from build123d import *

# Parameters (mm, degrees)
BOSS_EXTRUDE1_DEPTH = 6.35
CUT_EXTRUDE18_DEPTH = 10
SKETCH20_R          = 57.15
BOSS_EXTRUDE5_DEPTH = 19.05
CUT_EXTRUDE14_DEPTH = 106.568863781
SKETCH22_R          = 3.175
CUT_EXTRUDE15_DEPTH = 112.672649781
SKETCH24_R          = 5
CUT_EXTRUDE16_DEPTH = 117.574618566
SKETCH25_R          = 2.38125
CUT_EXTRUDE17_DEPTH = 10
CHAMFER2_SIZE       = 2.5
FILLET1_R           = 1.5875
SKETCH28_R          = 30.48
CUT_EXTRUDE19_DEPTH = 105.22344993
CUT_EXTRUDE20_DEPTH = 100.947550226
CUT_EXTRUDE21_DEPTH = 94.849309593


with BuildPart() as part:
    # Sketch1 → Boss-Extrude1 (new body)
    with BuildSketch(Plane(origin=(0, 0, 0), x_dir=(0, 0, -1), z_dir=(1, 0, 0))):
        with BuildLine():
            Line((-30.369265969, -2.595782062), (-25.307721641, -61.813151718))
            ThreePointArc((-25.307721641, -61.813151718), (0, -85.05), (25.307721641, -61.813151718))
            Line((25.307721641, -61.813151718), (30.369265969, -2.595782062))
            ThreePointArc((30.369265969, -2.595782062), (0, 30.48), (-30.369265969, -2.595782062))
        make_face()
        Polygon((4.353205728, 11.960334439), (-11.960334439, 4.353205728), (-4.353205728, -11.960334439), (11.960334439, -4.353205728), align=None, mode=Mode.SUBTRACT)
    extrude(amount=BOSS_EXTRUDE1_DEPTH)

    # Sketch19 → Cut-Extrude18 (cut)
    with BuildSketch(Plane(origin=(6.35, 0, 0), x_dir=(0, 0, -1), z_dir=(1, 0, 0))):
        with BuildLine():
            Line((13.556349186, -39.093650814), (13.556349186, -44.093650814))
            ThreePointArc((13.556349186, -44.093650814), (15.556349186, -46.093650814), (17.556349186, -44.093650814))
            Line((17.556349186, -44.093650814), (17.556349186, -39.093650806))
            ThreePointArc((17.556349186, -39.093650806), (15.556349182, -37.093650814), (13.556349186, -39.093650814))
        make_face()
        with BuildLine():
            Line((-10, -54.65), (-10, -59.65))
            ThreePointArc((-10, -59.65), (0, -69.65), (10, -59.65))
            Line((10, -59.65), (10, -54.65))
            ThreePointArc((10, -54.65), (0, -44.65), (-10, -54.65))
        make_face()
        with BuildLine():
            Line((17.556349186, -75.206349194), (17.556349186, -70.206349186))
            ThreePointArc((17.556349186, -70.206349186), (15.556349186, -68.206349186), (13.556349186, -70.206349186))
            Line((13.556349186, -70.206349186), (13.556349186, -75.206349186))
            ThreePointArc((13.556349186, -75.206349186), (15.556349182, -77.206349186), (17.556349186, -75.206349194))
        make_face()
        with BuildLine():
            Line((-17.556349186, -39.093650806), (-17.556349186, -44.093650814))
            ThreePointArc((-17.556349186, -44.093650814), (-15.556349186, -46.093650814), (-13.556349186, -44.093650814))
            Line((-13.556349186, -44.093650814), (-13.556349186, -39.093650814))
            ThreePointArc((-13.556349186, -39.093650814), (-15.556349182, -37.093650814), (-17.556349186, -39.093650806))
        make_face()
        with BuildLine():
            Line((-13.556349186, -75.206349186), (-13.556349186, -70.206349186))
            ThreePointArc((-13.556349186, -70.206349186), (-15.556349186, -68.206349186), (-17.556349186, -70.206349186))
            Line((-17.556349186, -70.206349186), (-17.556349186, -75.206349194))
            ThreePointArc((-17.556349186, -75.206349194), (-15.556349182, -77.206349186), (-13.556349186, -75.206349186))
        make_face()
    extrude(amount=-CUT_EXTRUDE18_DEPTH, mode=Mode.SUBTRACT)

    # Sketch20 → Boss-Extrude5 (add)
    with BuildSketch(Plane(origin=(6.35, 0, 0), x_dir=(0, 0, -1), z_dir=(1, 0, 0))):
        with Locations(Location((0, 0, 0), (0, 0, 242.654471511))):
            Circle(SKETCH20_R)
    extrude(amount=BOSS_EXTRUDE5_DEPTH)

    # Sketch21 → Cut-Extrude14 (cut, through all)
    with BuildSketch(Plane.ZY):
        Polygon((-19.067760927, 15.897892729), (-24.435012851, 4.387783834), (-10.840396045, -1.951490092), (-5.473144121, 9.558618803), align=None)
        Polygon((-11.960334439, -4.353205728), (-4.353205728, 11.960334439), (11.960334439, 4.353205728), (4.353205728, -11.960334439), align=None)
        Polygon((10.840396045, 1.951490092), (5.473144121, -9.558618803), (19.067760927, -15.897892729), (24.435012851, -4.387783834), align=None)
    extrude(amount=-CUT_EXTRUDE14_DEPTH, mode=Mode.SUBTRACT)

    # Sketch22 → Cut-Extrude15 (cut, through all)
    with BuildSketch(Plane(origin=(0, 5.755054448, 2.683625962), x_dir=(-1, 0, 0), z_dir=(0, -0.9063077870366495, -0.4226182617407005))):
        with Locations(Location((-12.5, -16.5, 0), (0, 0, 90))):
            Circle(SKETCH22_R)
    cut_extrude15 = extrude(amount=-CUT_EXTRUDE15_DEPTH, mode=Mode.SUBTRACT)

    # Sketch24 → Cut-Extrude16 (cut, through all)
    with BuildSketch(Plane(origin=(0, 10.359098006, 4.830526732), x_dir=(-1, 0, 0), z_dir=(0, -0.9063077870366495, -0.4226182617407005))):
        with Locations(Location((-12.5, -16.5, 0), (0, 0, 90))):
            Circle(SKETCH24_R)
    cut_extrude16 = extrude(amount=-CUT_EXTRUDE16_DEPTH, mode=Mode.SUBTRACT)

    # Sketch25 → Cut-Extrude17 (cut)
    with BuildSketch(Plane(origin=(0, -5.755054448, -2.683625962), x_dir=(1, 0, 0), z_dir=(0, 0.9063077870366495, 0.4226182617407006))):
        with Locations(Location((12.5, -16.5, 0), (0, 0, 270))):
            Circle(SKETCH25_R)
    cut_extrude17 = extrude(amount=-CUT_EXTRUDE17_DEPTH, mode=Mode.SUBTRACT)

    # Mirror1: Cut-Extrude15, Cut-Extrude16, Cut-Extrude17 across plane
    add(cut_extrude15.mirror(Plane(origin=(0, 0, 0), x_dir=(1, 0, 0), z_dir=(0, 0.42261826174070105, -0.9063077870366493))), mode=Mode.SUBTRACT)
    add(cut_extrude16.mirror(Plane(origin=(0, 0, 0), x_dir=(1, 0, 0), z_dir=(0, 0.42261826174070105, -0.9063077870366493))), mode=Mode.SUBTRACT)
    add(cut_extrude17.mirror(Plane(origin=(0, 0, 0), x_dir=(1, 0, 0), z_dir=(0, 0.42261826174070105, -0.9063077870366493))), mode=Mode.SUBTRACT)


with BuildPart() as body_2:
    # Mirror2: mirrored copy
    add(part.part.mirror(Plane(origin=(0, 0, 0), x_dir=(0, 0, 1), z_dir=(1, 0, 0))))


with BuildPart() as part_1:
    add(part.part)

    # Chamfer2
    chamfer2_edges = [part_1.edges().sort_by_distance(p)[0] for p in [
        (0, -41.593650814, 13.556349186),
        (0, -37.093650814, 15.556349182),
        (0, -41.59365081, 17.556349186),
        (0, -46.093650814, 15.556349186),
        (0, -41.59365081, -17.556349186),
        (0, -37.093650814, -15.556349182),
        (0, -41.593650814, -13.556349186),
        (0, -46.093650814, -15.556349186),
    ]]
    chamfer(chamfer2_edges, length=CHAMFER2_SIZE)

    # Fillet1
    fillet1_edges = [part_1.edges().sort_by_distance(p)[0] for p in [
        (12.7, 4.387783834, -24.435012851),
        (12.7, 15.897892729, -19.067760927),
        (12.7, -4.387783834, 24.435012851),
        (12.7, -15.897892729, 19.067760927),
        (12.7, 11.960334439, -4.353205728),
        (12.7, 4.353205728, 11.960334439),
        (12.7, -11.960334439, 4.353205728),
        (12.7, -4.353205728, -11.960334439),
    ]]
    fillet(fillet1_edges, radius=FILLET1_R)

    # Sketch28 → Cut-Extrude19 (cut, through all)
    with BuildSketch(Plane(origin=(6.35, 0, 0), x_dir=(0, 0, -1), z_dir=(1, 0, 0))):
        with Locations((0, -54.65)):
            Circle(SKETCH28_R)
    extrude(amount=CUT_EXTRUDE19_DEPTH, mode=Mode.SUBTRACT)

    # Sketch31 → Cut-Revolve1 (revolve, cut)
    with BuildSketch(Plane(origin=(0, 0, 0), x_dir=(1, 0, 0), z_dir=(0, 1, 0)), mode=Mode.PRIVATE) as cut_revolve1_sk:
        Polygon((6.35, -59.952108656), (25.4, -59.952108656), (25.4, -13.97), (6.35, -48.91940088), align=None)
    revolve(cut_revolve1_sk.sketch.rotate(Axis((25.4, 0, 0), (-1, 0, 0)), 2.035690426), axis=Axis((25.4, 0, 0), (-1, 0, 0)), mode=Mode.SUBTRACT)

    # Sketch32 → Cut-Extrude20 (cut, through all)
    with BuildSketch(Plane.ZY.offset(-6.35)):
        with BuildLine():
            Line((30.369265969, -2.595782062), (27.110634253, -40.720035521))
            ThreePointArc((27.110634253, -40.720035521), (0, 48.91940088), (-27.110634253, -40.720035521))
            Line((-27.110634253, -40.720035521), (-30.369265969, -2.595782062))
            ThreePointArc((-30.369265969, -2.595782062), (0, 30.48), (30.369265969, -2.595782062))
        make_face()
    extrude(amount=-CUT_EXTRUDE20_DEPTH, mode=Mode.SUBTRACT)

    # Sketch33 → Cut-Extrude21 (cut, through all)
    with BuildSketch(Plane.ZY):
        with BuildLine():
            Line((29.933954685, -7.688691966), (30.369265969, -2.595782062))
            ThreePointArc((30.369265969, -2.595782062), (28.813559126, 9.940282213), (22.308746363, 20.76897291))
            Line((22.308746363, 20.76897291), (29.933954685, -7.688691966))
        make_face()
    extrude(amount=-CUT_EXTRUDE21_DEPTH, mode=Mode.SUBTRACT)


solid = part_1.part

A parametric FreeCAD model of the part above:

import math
import FreeCAD as App
import Part
import Sketcher

V = App.Vector
Q = App.Units.Quantity


def edges_at(feature, points):
    """Names of the edges that pass closest to the given points."""
    edges = feature.Shape.Edges
    near = lambda p: min(range(len(edges)), key=lambda i: edges[i].distToShape(Part.Vertex(*p))[0])
    return sorted({f"Edge{near(p) + 1}" for p in points})


def add_polygon(sketch, points):
    """Adds a closed chain of lines whose ends are joined by coincident constraints."""
    first, n = sketch.GeometryCount, len(points)
    for a, b in zip(points, points[1:] + points[:1]):
        sketch.addGeometry(Part.LineSegment(App.Vector(*a, 0), App.Vector(*b, 0)), False)
    for i in range(n):
        sketch.addConstraint(Sketcher.Constraint("Coincident", first + i, 2, first + (i + 1) % n, 1))

doc = App.newDocument("Part")
body = doc.addObject("PartDesign::Body", "Body")

sketch1 = doc.addObject("Sketcher::SketchObject", "Sketch")
body.addObject(sketch1)
sketch1.AttachmentSupport = (doc.YZ_Plane, [""])
sketch1.MapMode = "FlatFace"
sketch1.addGeometry(Part.LineSegment(V(-3, 30, 0), V(-62, 25, 0)), False)
sketch1.addGeometry(Part.ArcOfCircle(Part.Circle(V(-60, 0, 0), V(0, 0, 1), 25), math.radians(95), math.radians(265)), False)
sketch1.addGeometry(Part.LineSegment(V(-62, -25, 0), V(-3, -30, 0)), False)
sketch1.addGeometry(Part.ArcOfCircle(Part.Circle(V(0, 0, 0), V(0, 0, 1), 30), math.radians(-95), math.radians(95)), False)
add_polygon(sketch1, [(4, 12), (12, -4), (-4, -12), (-12, 4)])
sketch1.addConstraint([
    Sketcher.Constraint("Tangent", 0, 2, 1, 1),
    Sketcher.Constraint("Tangent", 1, 2, 2, 1),
    Sketcher.Constraint("Tangent", 2, 2, 3, 1),
    Sketcher.Constraint("Tangent", 3, 2, 0, 1),
    Sketcher.Constraint("Coincident", 3, 3, -1, 1),
    Sketcher.Constraint("Symmetric", 4, 2, 6, 2, -1, 1),
    Sketcher.Constraint("Symmetric", 5, 2, 7, 2, -1, 1),
    Sketcher.Constraint("PointOnObject", 1, 3, -1),
    Sketcher.Constraint("Perpendicular", 4, 5),
    Sketcher.Constraint("Equal", 4, 5),
    Sketcher.Constraint("Radius", 1, Q("1 in")),
    Sketcher.Constraint("Radius", 3, Q("1.2 in")),
    Sketcher.Constraint("Angle", 4, Q("-65 deg")),
    Sketcher.Constraint("Distance", 4, Q("18 mm")),
    Sketcher.Constraint("DistanceX", 1, 3, -1, 1, Q("59.65 mm")),
])
pad1 = doc.addObject("PartDesign::Pad", "Pad")
body.addObject(pad1)
pad1.Profile = sketch1
pad1.Length = Q("0.25 in")

sketch2 = doc.addObject("Sketcher::SketchObject", "Sketch001")
body.addObject(sketch2)
sketch2.AttachmentSupport = (doc.YZ_Plane, [""])
sketch2.MapMode = "FlatFace"
sketch2.AttachmentOffset = App.Placement(V(0, 0, 0.25 * 25.4), App.Rotation())
sketch2.addGeometry([
    Part.LineSegment(V(-39.1, -13.6, 0), V(-44.1, -13.6, 0)),
    Part.ArcOfCircle(Part.Circle(V(-44.1, -15.6, 0), V(0, 0, 1), 2), math.radians(90), math.radians(270)),
    Part.LineSegment(V(-44.1, -17.6, 0), V(-39.1, -17.6, 0)),
    Part.ArcOfCircle(Part.Circle(V(-39.1, -15.6, 0), V(0, 0, 1), 2), math.radians(-90), math.radians(90)),
    Part.LineSegment(V(-54.6, 10, 0), V(-59.6, 10, 0)),
    Part.ArcOfCircle(Part.Circle(V(-59.6, 0, 0), V(0, 0, 1), 10), math.radians(90), math.radians(270)),
    Part.LineSegment(V(-59.6, -10, 0), V(-54.6, -10, 0)),
    Part.ArcOfCircle(Part.Circle(V(-54.6, 0, 0), V(0, 0, 1), 10), math.radians(-90), math.radians(90)),
    Part.LineSegment(V(-75.2, -17.6, 0), V(-70.2, -17.6, 0)),
    Part.ArcOfCircle(Part.Circle(V(-70.2, -15.6, 0), V(0, 0, 1), 2), math.radians(-90), math.radians(90)),
    Part.LineSegment(V(-70.2, -13.6, 0), V(-75.2, -13.6, 0)),
    Part.ArcOfCircle(Part.Circle(V(-75.2, -15.6, 0), V(0, 0, 1), 2), math.radians(90), math.radians(270)),
    Part.LineSegment(V(-39.1, 17.6, 0), V(-44.1, 17.6, 0)),
    Part.ArcOfCircle(Part.Circle(V(-44.1, 15.6, 0), V(0, 0, 1), 2), math.radians(90), math.radians(270)),
    Part.LineSegment(V(-44.1, 13.6, 0), V(-39.1, 13.6, 0)),
    Part.ArcOfCircle(Part.Circle(V(-39.1, 15.6, 0), V(0, 0, 1), 2), math.radians(-90), math.radians(90)),
    Part.LineSegment(V(-75.2, 13.6, 0), V(-70.2, 13.6, 0)),
    Part.ArcOfCircle(Part.Circle(V(-70.2, 15.6, 0), V(0, 0, 1), 2), math.radians(-90), math.radians(90)),
    Part.LineSegment(V(-70.2, 17.6, 0), V(-75.2, 17.6, 0)),
    Part.ArcOfCircle(Part.Circle(V(-75.2, 15.6, 0), V(0, 0, 1), 2), math.radians(90), math.radians(270)),
], False)
sketch2.addConstraint([
    Sketcher.Constraint("Tangent", 0, 2, 1, 1),
    Sketcher.Constraint("Tangent", 1, 2, 2, 1),
    Sketcher.Constraint("Tangent", 2, 2, 3, 1),
    Sketcher.Constraint("Tangent", 3, 2, 0, 1),
    Sketcher.Constraint("Tangent", 4, 2, 5, 1),
    Sketcher.Constraint("Tangent", 5, 2, 6, 1),
    Sketcher.Constraint("Tangent", 6, 2, 7, 1),
    Sketcher.Constraint("Tangent", 7, 2, 4, 1),
    Sketcher.Constraint("Tangent", 8, 2, 9, 1),
    Sketcher.Constraint("Tangent", 9, 2, 10, 1),
    Sketcher.Constraint("Tangent", 10, 2, 11, 1),
    Sketcher.Constraint("Tangent", 11, 2, 8, 1),
    Sketcher.Constraint("Tangent", 12, 2, 13, 1),
    Sketcher.Constraint("Tangent", 13, 2, 14, 1),
    Sketcher.Constraint("Tangent", 14, 2, 15, 1),
    Sketcher.Constraint("Tangent", 15, 2, 12, 1),
    Sketcher.Constraint("Tangent", 16, 2, 17, 1),
    Sketcher.Constraint("Tangent", 17, 2, 18, 1),
    Sketcher.Constraint("Tangent", 18, 2, 19, 1),
    Sketcher.Constraint("Tangent", 19, 2, 16, 1),
    Sketcher.Constraint("Horizontal", 0),
    Sketcher.Constraint("Horizontal", 2),
    Sketcher.Constraint("Horizontal", 4),
    Sketcher.Constraint("Horizontal", 6),
    Sketcher.Constraint("Horizontal", 8),
    Sketcher.Constraint("Horizontal", 10),
    Sketcher.Constraint("Horizontal", 12),
    Sketcher.Constraint("Horizontal", 14),
    Sketcher.Constraint("Horizontal", 16),
    Sketcher.Constraint("Horizontal", 18),
    Sketcher.Constraint("Equal", 3, 9),
    Sketcher.Constraint("Equal", 11, 13),
    Sketcher.Constraint("Equal", 15, 17),
    Sketcher.Constraint("Symmetric", 1, 3, 13, 3, -1),
    Sketcher.Constraint("Symmetric", 9, 3, 17, 3, -1),
    Sketcher.Constraint("PointOnObject", 5, 3, -1),
    Sketcher.Constraint("Horizontal", 3, 3, 9, 3),
    Sketcher.Constraint("Vertical", 3, 3, 15, 3),
    Sketcher.Constraint("Vertical", 11, 3, 19, 3),
    Sketcher.Constraint("Equal", 2, 4),
    Sketcher.Constraint("Equal", 6, 8),
    Sketcher.Constraint("Radius", 1, Q("2 mm")),
    Sketcher.Constraint("Radius", 5, Q("10 mm")),
    Sketcher.Constraint("DistanceX", 0, 2, 0, 1, Q("5 mm")),
    Sketcher.Constraint("DistanceX", 5, 3, -1, 1, Q("59.65 mm")),
    Sketcher.Constraint("DistanceX", 9, 3, 1, 3, Q("26.112698 mm")),
    Sketcher.Constraint("DistanceY", 1, 3, 13, 3, Q("31.112698 mm")),
    Sketcher.Constraint("DistanceX", 1, 3, -1, 1, Q("44.093651 mm")),
])
pocket1 = doc.addObject("PartDesign::Pocket", "Pocket")
body.addObject(pocket1)
pocket1.Profile = sketch2
pocket1.Length = 10

sketch3 = doc.addObject("Sketcher::SketchObject", "Sketch002")
body.addObject(sketch3)
sketch3.AttachmentSupport = (doc.YZ_Plane, [""])
sketch3.MapMode = "FlatFace"
sketch3.AttachmentOffset = App.Placement(V(0, 0, 0.25 * 25.4), App.Rotation())
sketch3.addGeometry(Part.Circle(V(0, 0, 0), V(0, 0, 1), 57), False)
sketch3.addConstraint([
    Sketcher.Constraint("Coincident", 0, 3, -1, 1),
    Sketcher.Constraint("Diameter", 0, Q("4.5 in")),
])
pad2 = doc.addObject("PartDesign::Pad", "Pad001")
body.addObject(pad2)
pad2.Profile = sketch3
pad2.Length = Q("0.75 in")

sketch4 = doc.addObject("Sketcher::SketchObject", "Sketch003")
body.addObject(sketch4)
sketch4.AttachmentSupport = (doc.YZ_Plane, [""])
sketch4.MapMode = "FlatFace"
add_polygon(sketch4, [(15.9, -19.1), (4.4, -24.4), (-2, -10.8), (-4.4, -12), (-12, 4.4), (-9.6, 5.5), (-15.9, 19.1), (-4.4, 24.4), (2, 10.8), (4.4, 12), (12, -4.4), (9.6, -5.5)])
sketch4.addConstraint([
    Sketcher.Constraint("Symmetric", 0, 2, 6, 2, -1, 1),
    Sketcher.Constraint("Symmetric", 1, 2, 7, 2, -1, 1),
    Sketcher.Constraint("Symmetric", 2, 2, 8, 2, -1, 1),
    Sketcher.Constraint("Symmetric", 3, 2, 9, 2, -1, 1),
    Sketcher.Constraint("Symmetric", 4, 2, 10, 2, -1, 1),
    Sketcher.Constraint("Symmetric", 5, 2, 11, 2, -1, 1),
    Sketcher.Constraint("Perpendicular", 0, 1),
    Sketcher.Constraint("Perpendicular", 1, 2),
    Sketcher.Constraint("Perpendicular", 2, 3),
    Sketcher.Constraint("Perpendicular", 3, 4),
    Sketcher.Constraint("Perpendicular", 4, 5),
    Sketcher.Constraint("Equal", 2, 4),
    Sketcher.Constraint("Equal", 1, 5),
    Sketcher.Constraint("Angle", 0, Q("-155 deg")),
    Sketcher.Constraint("Distance", 0, Q("0.5 in")),
    Sketcher.Constraint("Distance", 1, Q("15 mm")),
    Sketcher.Constraint("Distance", 2, Q("2.65 mm")),
    Sketcher.Constraint("Distance", 3, Q("18 mm")),
])
pocket2 = doc.addObject("PartDesign::Pocket", "Pocket001")
body.addObject(pocket2)
pocket2.Profile = sketch4
pocket2.Type = "ThroughAll"
pocket2.Reversed = True

sketch5 = doc.addObject("Sketcher::SketchObject", "Sketch004")
body.addObject(sketch5)
sketch5.Placement = App.Placement(V(0, 5.755054, 2.683626), App.Rotation(V(-1, 0, 0), V(0, 0.422618262, -0.906307787), V(0, -0.906307787, -0.422618262), "ZXY"))
sketch5.addGeometry(Part.Circle(V(-12.5, -16.5, 0), V(0, 0, 1), 3.2), False)
sketch5.addConstraint([
    Sketcher.Constraint("Diameter", 0, Q("0.25 in")),
    Sketcher.Constraint("DistanceX", 0, 3, -1, 1, Q("12.5 mm")),
    Sketcher.Constraint("DistanceY", 0, 3, -1, 1, Q("16.5 mm")),
])
pocket3 = doc.addObject("PartDesign::Pocket", "Pocket002")
body.addObject(pocket3)
pocket3.Profile = sketch5
pocket3.Type = "ThroughAll"

sketch6 = doc.addObject("Sketcher::SketchObject", "Sketch005")
body.addObject(sketch6)
sketch6.Placement = App.Placement(V(0, 10.359098, 4.830527), App.Rotation(V(-1, 0, 0), V(0, 0.422618262, -0.906307787), V(0, -0.906307787, -0.422618262), "ZXY"))
sketch6.addGeometry(Part.Circle(V(-12, -17, 0), V(0, 0, 1), 5), False)
sketch6.addConstraint([
    Sketcher.Constraint("Diameter", 0, Q("10 mm")),
    Sketcher.Constraint("DistanceX", 0, 3, -1, 1, Q("12.5 mm")),
    Sketcher.Constraint("DistanceY", 0, 3, -1, 1, Q("16.5 mm")),
])
pocket4 = doc.addObject("PartDesign::Pocket", "Pocket003")
body.addObject(pocket4)
pocket4.Profile = sketch6
pocket4.Type = "ThroughAll"

sketch7 = doc.addObject("Sketcher::SketchObject", "Sketch006")
body.addObject(sketch7)
sketch7.Placement = App.Placement(V(0, -5.755054, -2.683626), App.Rotation(V(1, 0, 0), V(0, 0.422618262, -0.906307787), V(0, 0.906307787, 0.422618262), "ZXY"))
sketch7.addGeometry(Part.Circle(V(12.5, -16.5, 0), V(0, 0, 1), 2.4), False)
sketch7.addConstraint([
    Sketcher.Constraint("Diameter", 0, Q("0.1875 in")),
    Sketcher.Constraint("DistanceX", -1, 1, 0, 3, Q("12.5 mm")),
    Sketcher.Constraint("DistanceY", 0, 3, -1, 1, Q("16.5 mm")),
])
pocket5 = doc.addObject("PartDesign::Pocket", "Pocket004")
body.addObject(pocket5)
pocket5.Profile = sketch7
pocket5.Length = 10
doc.recompute()

datumplane = doc.addObject("PartDesign::Plane", "DatumPlane")
body.addObject(datumplane)
datumplane.Placement = App.Placement(V(0, 0, 0), App.Rotation(V(0, -0.906307787, -0.422618262), V(-1, 0, 0), V(0, 0.422618262, -0.906307787), "ZXY"))
mirrored = doc.addObject("PartDesign::Mirrored", "Mirrored")
body.addObject(mirrored)
mirrored.Originals = [pocket3, pocket4, pocket5]
mirrored.MirrorPlane = (datumplane, [""])
body.Tip = mirrored
body2 = doc.addObject("PartDesign::Body", "Body001")
doc.recompute()

mirroring = doc.addObject("Part::Mirroring", "Mirroring")
mirroring.Source = body
mirroring.Base = V(0, 0, 0)
mirroring.Normal = V(1, 0, 0)
body2.BaseFeature = mirroring
doc.recompute()

chamfer = doc.addObject("PartDesign::Chamfer", "Chamfer")
body.addObject(chamfer)
chamfer.Base = (mirrored, edges_at(mirrored, [
    (0, -41.594, 13.556),
    (0, -37.094, 15.556),
    (0, -41.594, 17.556),
    (0, -46.094, 15.556),
    (0, -41.594, -17.556),
    (0, -37.094, -15.556),
    (0, -41.594, -13.556),
    (0, -46.094, -15.556),
]))
chamfer.Size = 2.5
doc.recompute()

fillet = doc.addObject("PartDesign::Fillet", "Fillet")
body.addObject(fillet)
fillet.Base = (chamfer, edges_at(chamfer, [
    (12.7, 4.388, -24.435),
    (12.7, 15.898, -19.068),
    (12.7, -4.388, 24.435),
    (12.7, -15.898, 19.068),
    (12.7, 11.96, -4.353),
    (12.7, 4.353, 11.96),
    (12.7, -11.96, 4.353),
    (12.7, -4.353, -11.96),
]))
fillet.Radius = Q("0.0625 in")

sketch8 = doc.addObject("Sketcher::SketchObject", "Sketch007")
body.addObject(sketch8)
sketch8.AttachmentSupport = (doc.YZ_Plane, [""])
sketch8.MapMode = "FlatFace"
sketch8.AttachmentOffset = App.Placement(V(0, 0, 0.25 * 25.4), App.Rotation())
sketch8.addGeometry(Part.Circle(V(-55, 0, 0), V(0, 0, 1), 30), False)
sketch8.addConstraint([
    Sketcher.Constraint("PointOnObject", 0, 3, -1),
    Sketcher.Constraint("Diameter", 0, Q("2.4 in")),
    Sketcher.Constraint("DistanceX", 0, 3, -1, 1, Q("54.65 mm")),
])
pocket6 = doc.addObject("PartDesign::Pocket", "Pocket005")
body.addObject(pocket6)
pocket6.Profile = sketch8
pocket6.Type = "ThroughAll"
pocket6.Reversed = True

sketch9 = doc.addObject("Sketcher::SketchObject", "Sketch008")
body.addObject(sketch9)
sketch9.AttachmentSupport = (doc.XZ_Plane, [""])
sketch9.MapMode = "FlatFace"
add_polygon(sketch9, [(6, 60), (25, 60), (25, 14), (6, 49)])
sketch9.addConstraint([
    Sketcher.Constraint("Horizontal", 0),
    Sketcher.Constraint("Vertical", 1),
    Sketcher.Constraint("Vertical", 3),
    Sketcher.Constraint("DistanceX", -1, 1, 0, 2, Q("1 in")),
    Sketcher.Constraint("DistanceX", 0, 1, 0, 2, Q("0.75 in")),
    Sketcher.Constraint("DistanceY", -1, 1, 1, 2, Q("0.55 in")),
    Sketcher.Constraint("DistanceY", 1, 2, 1, 1, Q("45.982109 mm")),
    Sketcher.Constraint("DistanceY", -1, 1, 2, 2, Q("48.919401 mm")),
])
groove = doc.addObject("PartDesign::Groove", "Groove")
body.addObject(groove)
groove.Profile = sketch9
groove.ReferenceAxis = (sketch9, ["H_Axis"])
groove.Angle = 360

sketch10 = doc.addObject("Sketcher::SketchObject", "Sketch009")
body.addObject(sketch10)
sketch10.AttachmentSupport = (doc.YZ_Plane, [""])
sketch10.MapMode = "FlatFace"
sketch10.AttachmentOffset = App.Placement(V(0, 0, 0.25 * 25.4), App.Rotation())
sketch10.addGeometry([
    Part.LineSegment(V(-3, 30, 0), V(-41, 27, 0)),
    Part.ArcOfCircle(Part.Circle(V(0, 0, 0), V(0, 0, 1), 49), math.radians(-146), math.radians(146)),
    Part.LineSegment(V(-41, -27, 0), V(-3, -30, 0)),
    Part.ArcOfCircle(Part.Circle(V(0, 0, 0), V(0, 0, 1), 30), math.radians(-95), math.radians(95)),
], False)
sketch10.addConstraint([
    Sketcher.Constraint("Coincident", 0, 2, 1, 2),
    Sketcher.Constraint("Coincident", 1, 1, 2, 1),
    Sketcher.Constraint("Tangent", 2, 2, 3, 1),
    Sketcher.Constraint("Tangent", 3, 2, 0, 1),
    Sketcher.Constraint("Coincident", 1, 3, -1, 1),
    Sketcher.Constraint("Coincident", 3, 3, -1, 1),
    Sketcher.Constraint("Vertical", 0, 2, 1, 1),
    Sketcher.Constraint("Radius", 3, Q("1.2 in")),
    Sketcher.Constraint("Radius", 1, Q("48.919401 mm")),
    Sketcher.Constraint("DistanceY", 2, 2, 0, 2, Q("57.4799 mm")),
])
pocket7 = doc.addObject("PartDesign::Pocket", "Pocket006")
body.addObject(pocket7)
pocket7.Profile = sketch10
pocket7.Type = "ThroughAll"
pocket7.Reversed = True

sketch11 = doc.addObject("Sketcher::SketchObject", "Sketch010")
body.addObject(sketch11)
sketch11.AttachmentSupport = (doc.YZ_Plane, [""])
sketch11.MapMode = "FlatFace"
sketch11.addGeometry([
    Part.LineSegment(V(-8, 30, 0), V(-3, 30, 0)),
    Part.ArcOfCircle(Part.Circle(V(0, 0, 0), V(0, 0, 1), 30), math.radians(47), math.radians(95)),
    Part.LineSegment(V(21, 22, 0), V(-8, 30, 0)),
], False)
sketch11.addConstraint([
    Sketcher.Constraint("Tangent", 0, 2, 1, 2),
    Sketcher.Constraint("Coincident", 1, 1, 2, 1),
    Sketcher.Constraint("Coincident", 2, 2, 0, 1),
    Sketcher.Constraint("Coincident", 1, 3, -1, 1),
    Sketcher.Constraint("Radius", 1, Q("1.2 in")),
    Sketcher.Constraint("Angle", 2, Q("165 deg")),
    Sketcher.Constraint("Distance", 0, Q("5.11148 mm")),
    Sketcher.Constraint("DistanceX", 2, 2, -1, 1, Q("7.688692 mm")),
])
pocket8 = doc.addObject("PartDesign::Pocket", "Pocket007")
body.addObject(pocket8)
pocket8.Profile = sketch11
pocket8.Type = "ThroughAll"
pocket8.Reversed = True
body2.Visibility = False
mirroring.Visibility = False

doc.recompute()
